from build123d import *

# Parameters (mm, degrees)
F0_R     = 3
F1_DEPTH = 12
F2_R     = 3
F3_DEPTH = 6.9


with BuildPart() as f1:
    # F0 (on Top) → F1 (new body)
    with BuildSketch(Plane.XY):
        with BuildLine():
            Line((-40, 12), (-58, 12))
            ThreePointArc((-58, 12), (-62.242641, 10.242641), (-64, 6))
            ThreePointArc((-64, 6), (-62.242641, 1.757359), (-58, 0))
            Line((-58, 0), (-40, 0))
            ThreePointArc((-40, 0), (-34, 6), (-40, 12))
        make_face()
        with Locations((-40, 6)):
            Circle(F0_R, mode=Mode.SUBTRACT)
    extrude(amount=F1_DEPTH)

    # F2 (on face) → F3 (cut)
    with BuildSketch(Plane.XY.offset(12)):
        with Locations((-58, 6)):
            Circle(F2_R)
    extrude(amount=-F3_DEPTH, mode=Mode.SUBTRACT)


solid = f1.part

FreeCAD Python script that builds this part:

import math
import FreeCAD as App
import Part
import Sketcher
from FreeCAD import Vector

doc = App.newDocument("Part")
body = doc.addObject("PartDesign::Body", "Body")

sketch1 = body.newObject("Sketcher::SketchObject", "Sketch")
sketch1.AttachmentSupport = (doc.getObject("XY_Plane"), [""])
sketch1.MapMode = "FlatFace"
sketch1.addGeometry([
    Part.LineSegment(Vector(-40, 12, 0), Vector(-58, 12, 0)),
    Part.ArcOfCircle(Part.Circle(Vector(-58, 6, 0), Vector(0, 0, 1), 6), math.radians(90), math.radians(180)),
    Part.ArcOfCircle(Part.Circle(Vector(-58, 6, 0), Vector(0, 0, 1), 6), math.radians(180), math.radians(270)),
    Part.LineSegment(Vector(-58, 0, 0), Vector(-40, 0, 0)),
    Part.ArcOfCircle(Part.Circle(Vector(-40, 6, 0), Vector(0, 0, 1), 6), math.radians(-90), math.radians(90)),
    Part.Circle(Vector(-40, 6, 0), Vector(0, 0, 1), 3),
], False)
sketch1.addConstraint([
    Sketcher.Constraint("Tangent", 0, 2, 1, 1),
    Sketcher.Constraint("Tangent", 1, 2, 2, 1),
    Sketcher.Constraint("Tangent", 2, 2, 3, 1),
    Sketcher.Constraint("Tangent", 3, 2, 4, 1),
    Sketcher.Constraint("Tangent", 4, 2, 0, 1),
    Sketcher.Constraint("Horizontal", 0),
    Sketcher.Constraint("Horizontal", 3),
    Sketcher.Constraint("Coincident", 5, 3, 4, 3),
    Sketcher.Constraint("Equal", 1, 2),
    Sketcher.Constraint("PointOnObject", 2, 2, -1),
    Sketcher.Constraint("Horizontal", 5, 3, 1, 2),
    Sketcher.Constraint("Diameter", 5, 6.0),
    Sketcher.Constraint("Radius", 1, 5.999999),
    Sketcher.Constraint("DistanceX", 0, 2, 0, 1, 18.0),
    Sketcher.Constraint("DistanceX", 1, 3, -1, 1, 58.000001),
])
pad1 = body.newObject("PartDesign::Pad", "Pad")
pad1.Profile = sketch1
pad1.Length = 12

sketch2 = body.newObject("Sketcher::SketchObject", "Sketch001")
sketch2.AttachmentSupport = (doc.getObject("XY_Plane"), [""])
sketch2.MapMode = "FlatFace"
sketch2.AttachmentOffset = App.Placement(Vector(0, 0, 12), App.Rotation())
sketch2.addGeometry(Part.Circle(Vector(-58, 6, 0), Vector(0, 0, 1), 3), False)
sketch2.addConstraint([
    Sketcher.Constraint("Diameter", 0, 6.0),
    Sketcher.Constraint("DistanceX", 0, 3, -1, 1, 58.0),
    Sketcher.Constraint("DistanceY", -1, 1, 0, 3, 6.0),
])
pocket1 = body.newObject("PartDesign::Pocket", "Pocket")
pocket1.Profile = sketch2
pocket1.Length = 6.9

doc.recompute()
